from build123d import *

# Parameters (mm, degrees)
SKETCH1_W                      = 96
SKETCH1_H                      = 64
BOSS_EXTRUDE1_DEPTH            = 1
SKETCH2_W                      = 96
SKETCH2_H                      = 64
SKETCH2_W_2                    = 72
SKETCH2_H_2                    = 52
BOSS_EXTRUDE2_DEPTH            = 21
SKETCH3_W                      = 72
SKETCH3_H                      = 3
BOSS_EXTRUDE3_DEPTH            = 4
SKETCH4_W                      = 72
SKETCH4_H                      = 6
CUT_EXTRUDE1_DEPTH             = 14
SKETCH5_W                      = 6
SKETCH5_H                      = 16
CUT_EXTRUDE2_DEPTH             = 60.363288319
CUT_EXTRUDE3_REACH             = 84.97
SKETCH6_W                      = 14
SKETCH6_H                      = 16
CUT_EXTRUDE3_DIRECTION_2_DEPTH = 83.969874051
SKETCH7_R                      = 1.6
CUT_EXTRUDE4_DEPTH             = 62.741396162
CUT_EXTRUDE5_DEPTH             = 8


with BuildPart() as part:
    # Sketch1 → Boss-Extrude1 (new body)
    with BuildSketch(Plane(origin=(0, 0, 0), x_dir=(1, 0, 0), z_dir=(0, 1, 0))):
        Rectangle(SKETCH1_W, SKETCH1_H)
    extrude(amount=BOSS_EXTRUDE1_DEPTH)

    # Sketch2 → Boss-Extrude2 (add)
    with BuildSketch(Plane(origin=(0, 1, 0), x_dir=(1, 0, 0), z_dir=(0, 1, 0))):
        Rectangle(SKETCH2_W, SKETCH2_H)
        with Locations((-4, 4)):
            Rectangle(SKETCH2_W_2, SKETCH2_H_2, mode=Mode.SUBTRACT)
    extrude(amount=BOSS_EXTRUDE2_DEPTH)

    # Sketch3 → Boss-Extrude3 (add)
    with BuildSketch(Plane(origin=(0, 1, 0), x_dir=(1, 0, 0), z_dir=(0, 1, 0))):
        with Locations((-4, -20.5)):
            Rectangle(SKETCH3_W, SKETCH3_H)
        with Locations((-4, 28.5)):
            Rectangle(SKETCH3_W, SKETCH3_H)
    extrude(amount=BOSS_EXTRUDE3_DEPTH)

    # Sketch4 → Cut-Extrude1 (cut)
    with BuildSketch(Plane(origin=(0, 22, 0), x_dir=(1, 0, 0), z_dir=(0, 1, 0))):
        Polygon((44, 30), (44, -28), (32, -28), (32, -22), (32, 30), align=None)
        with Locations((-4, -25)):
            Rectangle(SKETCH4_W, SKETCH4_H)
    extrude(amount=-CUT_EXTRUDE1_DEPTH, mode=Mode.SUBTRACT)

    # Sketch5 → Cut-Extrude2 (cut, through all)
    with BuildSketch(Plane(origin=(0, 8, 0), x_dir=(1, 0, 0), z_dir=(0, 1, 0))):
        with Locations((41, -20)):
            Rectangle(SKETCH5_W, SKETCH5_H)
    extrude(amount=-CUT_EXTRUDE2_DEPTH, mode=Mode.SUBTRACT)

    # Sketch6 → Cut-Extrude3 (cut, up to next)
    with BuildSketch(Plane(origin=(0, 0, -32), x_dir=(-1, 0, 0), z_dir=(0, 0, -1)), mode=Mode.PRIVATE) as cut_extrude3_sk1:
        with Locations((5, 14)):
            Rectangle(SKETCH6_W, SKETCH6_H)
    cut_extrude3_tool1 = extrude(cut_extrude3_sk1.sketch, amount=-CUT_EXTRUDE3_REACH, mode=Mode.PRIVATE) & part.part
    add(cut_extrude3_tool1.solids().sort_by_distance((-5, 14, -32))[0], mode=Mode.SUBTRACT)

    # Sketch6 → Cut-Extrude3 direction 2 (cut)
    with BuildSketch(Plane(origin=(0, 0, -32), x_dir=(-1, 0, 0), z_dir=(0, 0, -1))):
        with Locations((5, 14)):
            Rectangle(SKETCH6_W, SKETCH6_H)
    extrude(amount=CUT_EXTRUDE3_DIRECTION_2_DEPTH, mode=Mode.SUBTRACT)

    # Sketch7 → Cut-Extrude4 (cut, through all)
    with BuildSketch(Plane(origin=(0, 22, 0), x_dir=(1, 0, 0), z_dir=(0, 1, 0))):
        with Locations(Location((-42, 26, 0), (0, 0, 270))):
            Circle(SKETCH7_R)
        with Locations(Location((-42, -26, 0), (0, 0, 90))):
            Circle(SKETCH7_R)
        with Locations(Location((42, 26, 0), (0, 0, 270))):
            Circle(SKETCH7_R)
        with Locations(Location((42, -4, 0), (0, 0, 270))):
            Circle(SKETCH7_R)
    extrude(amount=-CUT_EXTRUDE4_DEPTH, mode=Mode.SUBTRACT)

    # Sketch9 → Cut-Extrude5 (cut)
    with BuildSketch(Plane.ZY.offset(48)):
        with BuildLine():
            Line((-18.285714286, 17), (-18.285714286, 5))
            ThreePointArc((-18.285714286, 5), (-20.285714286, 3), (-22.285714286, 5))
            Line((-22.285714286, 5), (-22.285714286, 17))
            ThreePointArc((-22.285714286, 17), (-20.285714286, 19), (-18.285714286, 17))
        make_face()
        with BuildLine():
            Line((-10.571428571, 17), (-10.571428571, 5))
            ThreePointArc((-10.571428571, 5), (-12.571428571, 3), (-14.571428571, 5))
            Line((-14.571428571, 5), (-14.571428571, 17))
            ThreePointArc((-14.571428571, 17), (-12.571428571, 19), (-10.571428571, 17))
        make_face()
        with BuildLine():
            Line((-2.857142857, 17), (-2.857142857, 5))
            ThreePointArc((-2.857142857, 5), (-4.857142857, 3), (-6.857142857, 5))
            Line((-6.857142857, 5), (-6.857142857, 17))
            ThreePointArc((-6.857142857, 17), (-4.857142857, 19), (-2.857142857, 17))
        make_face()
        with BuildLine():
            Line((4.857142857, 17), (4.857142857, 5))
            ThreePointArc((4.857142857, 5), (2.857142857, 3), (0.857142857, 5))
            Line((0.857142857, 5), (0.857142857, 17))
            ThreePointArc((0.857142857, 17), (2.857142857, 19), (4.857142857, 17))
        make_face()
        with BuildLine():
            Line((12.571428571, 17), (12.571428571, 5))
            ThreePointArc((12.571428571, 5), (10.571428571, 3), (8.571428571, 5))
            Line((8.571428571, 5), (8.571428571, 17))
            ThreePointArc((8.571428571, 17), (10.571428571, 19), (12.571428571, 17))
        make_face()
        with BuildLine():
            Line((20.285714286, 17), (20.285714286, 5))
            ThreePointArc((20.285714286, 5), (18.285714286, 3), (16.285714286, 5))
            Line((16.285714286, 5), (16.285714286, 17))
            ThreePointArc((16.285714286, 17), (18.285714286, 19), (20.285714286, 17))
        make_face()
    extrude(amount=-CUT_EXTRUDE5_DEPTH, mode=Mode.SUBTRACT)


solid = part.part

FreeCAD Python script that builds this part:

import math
import FreeCAD as App
import Part
import Sketcher
from FreeCAD import Vector
Q = App.Units.Quantity


def add_polygon(sketch, points):
    """Adds a closed chain of lines whose ends are joined by coincident constraints."""
    first, n = sketch.GeometryCount, len(points)
    for a, b in zip(points, points[1:] + points[:1]):
        sketch.addGeometry(Part.LineSegment(App.Vector(*a, 0), App.Vector(*b, 0)), False)
    for i in range(n):
        sketch.addConstraint(Sketcher.Constraint("Coincident", first + i, 2, first + (i + 1) % n, 1))

doc = App.newDocument("Part")
body = doc.addObject("PartDesign::Body", "Body")

sketch1 = body.newObject("Sketcher::SketchObject", "Sketch")
sketch1.AttachmentSupport = (doc.getObject("XZ_Plane"), [""])
sketch1.MapMode = "FlatFace"
add_polygon(sketch1, [(-48, -32), (-48, 32), (48, 32), (48, -32)])
sketch1.addConstraint(Sketcher.Constraint("Vertical", 0))
sketch1.addConstraint(Sketcher.Constraint("Horizontal", 1))
sketch1.addConstraint(Sketcher.Constraint("Vertical", 2))
sketch1.addConstraint(Sketcher.Constraint("Horizontal", 3))
sketch1.addConstraint(Sketcher.Constraint("Symmetric", 0, 2, 2, 2, -1, 1))
sketch1.addConstraint(Sketcher.Constraint("DistanceX", 1, 1, 1, 2, Q("96 mm")))
sketch1.addConstraint(Sketcher.Constraint("DistanceY", 0, 1, 0, 2, Q("64 mm")))
pad1 = body.newObject("PartDesign::Pad", "Pad")
pad1.Profile = sketch1
pad1.Length = 1
pad1.Reversed = True

sketch2 = body.newObject("Sketcher::SketchObject", "Sketch001")
sketch2.AttachmentSupport = (doc.getObject("XZ_Plane"), [""])
sketch2.MapMode = "FlatFace"
sketch2.AttachmentOffset = App.Placement(Vector(0, 0, -1), App.Rotation())
add_polygon(sketch2, [(-48, -32), (-48, 32), (48, 32), (48, -32)])
add_polygon(sketch2, [(32, 22), (-40, 22), (-40, -30), (32, -30)])
sketch2.addConstraint(Sketcher.Constraint("Vertical", 0))
sketch2.addConstraint(Sketcher.Constraint("Horizontal", 1))
sketch2.addConstraint(Sketcher.Constraint("Vertical", 2))
sketch2.addConstraint(Sketcher.Constraint("Horizontal", 3))
sketch2.addConstraint(Sketcher.Constraint("Horizontal", 4))
sketch2.addConstraint(Sketcher.Constraint("Vertical", 5))
sketch2.addConstraint(Sketcher.Constraint("Horizontal", 6))
sketch2.addConstraint(Sketcher.Constraint("Vertical", 7))
sketch2.addConstraint(Sketcher.Constraint("Symmetric", 0, 2, 2, 2, -1, 1))
sketch2.addConstraint(Sketcher.Constraint("DistanceX", 1, 1, 1, 2, Q("96 mm")))
sketch2.addConstraint(Sketcher.Constraint("DistanceX", 4, 2, 4, 1, Q("72 mm")))
sketch2.addConstraint(Sketcher.Constraint("DistanceY", 0, 1, 0, 2, Q("64 mm")))
sketch2.addConstraint(Sketcher.Constraint("DistanceY", 5, 2, 5, 1, Q("52 mm")))
sketch2.addConstraint(Sketcher.Constraint("DistanceX", 4, 2, -1, 1, Q("40 mm")))
sketch2.addConstraint(Sketcher.Constraint("DistanceY", -1, 1, 4, 2, Q("22 mm")))
pad2 = body.newObject("PartDesign::Pad", "Pad001")
pad2.Profile = sketch2
pad2.Length = 21
pad2.Reversed = True

sketch3 = body.newObject("Sketcher::SketchObject", "Sketch002")
sketch3.AttachmentSupport = (doc.getObject("XZ_Plane"), [""])
sketch3.MapMode = "FlatFace"
sketch3.AttachmentOffset = App.Placement(Vector(0, 0, -1), App.Rotation())
add_polygon(sketch3, [(-40, 19), (-40, 22), (32, 22), (32, 19)])
add_polygon(sketch3, [(-40, -30), (-40, -27), (32, -27), (32, -30)])
sketch3.addConstraint(Sketcher.Constraint("Vertical", 0))
sketch3.addConstraint(Sketcher.Constraint("Horizontal", 1))
sketch3.addConstraint(Sketcher.Constraint("Vertical", 2))
sketch3.addConstraint(Sketcher.Constraint("Horizontal", 3))
sketch3.addConstraint(Sketcher.Constraint("Vertical", 4))
sketch3.addConstraint(Sketcher.Constraint("Horizontal", 5))
sketch3.addConstraint(Sketcher.Constraint("Vertical", 6))
sketch3.addConstraint(Sketcher.Constraint("Horizontal", 7))
sketch3.addConstraint(Sketcher.Constraint("Vertical", 3, 2, 4, 2))
sketch3.addConstraint(Sketcher.Constraint("Vertical", 2, 2, 5, 2))
sketch3.addConstraint(Sketcher.Constraint("Equal", 2, 4))
sketch3.addConstraint(Sketcher.Constraint("DistanceX", 1, 1, 1, 2, Q("72 mm")))
sketch3.addConstraint(Sketcher.Constraint("DistanceY", 0, 1, 0, 2, Q("3 mm")))
sketch3.addConstraint(Sketcher.Constraint("DistanceX", 0, 2, -1, 1, Q("40 mm")))
sketch3.addConstraint(Sketcher.Constraint("DistanceY", -1, 1, 0, 2, Q("22 mm")))
sketch3.addConstraint(Sketcher.Constraint("DistanceY", 4, 2, -1, 1, Q("27 mm")))
pad3 = body.newObject("PartDesign::Pad", "Pad002")
pad3.Profile = sketch3
pad3.Length = 4
pad3.Reversed = True

sketch4 = body.newObject("Sketcher::SketchObject", "Sketch003")
sketch4.AttachmentSupport = (doc.getObject("XZ_Plane"), [""])
sketch4.MapMode = "FlatFace"
sketch4.AttachmentOffset = App.Placement(Vector(0, 0, -22), App.Rotation())
add_polygon(sketch4, [(44, 28), (44, -30), (32, -30), (32, 22), (-40, 22), (-40, 28)])
sketch4.addConstraint(Sketcher.Constraint("Vertical", 0))
sketch4.addConstraint(Sketcher.Constraint("Horizontal", 1))
sketch4.addConstraint(Sketcher.Constraint("Vertical", 2))
sketch4.addConstraint(Sketcher.Constraint("Horizontal", 3))
sketch4.addConstraint(Sketcher.Constraint("Vertical", 4))
sketch4.addConstraint(Sketcher.Constraint("Horizontal", 5))
sketch4.addConstraint(Sketcher.Constraint("DistanceX", 1, 2, 1, 1, Q("12 mm")))
sketch4.addConstraint(Sketcher.Constraint("DistanceX", 3, 2, 3, 1, Q("72 mm")))
sketch4.addConstraint(Sketcher.Constraint("DistanceY", 0, 2, 0, 1, Q("58 mm")))
sketch4.addConstraint(Sketcher.Constraint("DistanceY", 2, 1, 2, 2, Q("52 mm")))
sketch4.addConstraint(Sketcher.Constraint("DistanceX", -1, 1, 0, 2, Q("44 mm")))
sketch4.addConstraint(Sketcher.Constraint("DistanceY", 0, 2, -1, 1, Q("30 mm")))
pocket1 = body.newObject("PartDesign::Pocket", "Pocket")
pocket1.Profile = sketch4
pocket1.Length = 14
pocket1.Reversed = True

sketch5 = body.newObject("Sketcher::SketchObject", "Sketch004")
sketch5.AttachmentSupport = (doc.getObject("XZ_Plane"), [""])
sketch5.MapMode = "FlatFace"
sketch5.AttachmentOffset = App.Placement(Vector(0, 0, -8), App.Rotation())
add_polygon(sketch5, [(38, 12), (38, 28), (44, 28), (44, 12)])
sketch5.addConstraint(Sketcher.Constraint("Vertical", 0))
sketch5.addConstraint(Sketcher.Constraint("Horizontal", 1))
sketch5.addConstraint(Sketcher.Constraint("Vertical", 2))
sketch5.addConstraint(Sketcher.Constraint("Horizontal", 3))
sketch5.addConstraint(Sketcher.Constraint("DistanceX", 1, 1, 1, 2, Q("6 mm")))
sketch5.addConstraint(Sketcher.Constraint("DistanceY", 0, 1, 0, 2, Q("16 mm")))
sketch5.addConstraint(Sketcher.Constraint("DistanceX", -1, 1, 0, 2, Q("38 mm")))
sketch5.addConstraint(Sketcher.Constraint("DistanceY", -1, 1, 0, 2, Q("28 mm")))
pocket2 = body.newObject("PartDesign::Pocket", "Pocket001")
pocket2.Profile = sketch5
pocket2.Type = "ThroughAll"
pocket2.Reversed = True

sketch6 = body.newObject("Sketcher::SketchObject", "Sketch005")
sketch6.AttachmentSupport = (doc.getObject("XY_Plane"), [""])
sketch6.MapMode = "FlatFace"
sketch6.AttachmentOffset = App.Placement(Vector(0, 0, -32), App.Rotation())
add_polygon(sketch6, [(2, 22), (2, 6), (-12, 6), (-12, 22)])
sketch6.addConstraint(Sketcher.Constraint("Vertical", 0))
sketch6.addConstraint(Sketcher.Constraint("Horizontal", 1))
sketch6.addConstraint(Sketcher.Constraint("Vertical", 2))
sketch6.addConstraint(Sketcher.Constraint("Horizontal", 3))
sketch6.addConstraint(Sketcher.Constraint("DistanceX", 1, 2, 1, 1, Q("14 mm")))
sketch6.addConstraint(Sketcher.Constraint("DistanceY", 0, 2, 0, 1, Q("16 mm")))
sketch6.addConstraint(Sketcher.Constraint("DistanceX", -1, 1, 0, 2, Q("2 mm")))
sketch6.addConstraint(Sketcher.Constraint("DistanceY", -1, 1, 0, 2, Q("6 mm")))
pocket3 = body.newObject("PartDesign::Pocket", "Pocket002")
pocket3.Profile = sketch6
pocket3.Type = "UpToFirst"
pocket3.Reversed = True

sketch7 = body.newObject("Sketcher::SketchObject", "Sketch006")
sketch7.AttachmentSupport = (doc.getObject("XY_Plane"), [""])
sketch7.MapMode = "FlatFace"
sketch7.AttachmentOffset = App.Placement(Vector(0, 0, -32), App.Rotation())
add_polygon(sketch7, [(2, 22), (2, 6), (-12, 6), (-12, 22)])
sketch7.addConstraint(Sketcher.Constraint("Vertical", 0))
sketch7.addConstraint(Sketcher.Constraint("Horizontal", 1))
sketch7.addConstraint(Sketcher.Constraint("Vertical", 2))
sketch7.addConstraint(Sketcher.Constraint("Horizontal", 3))
sketch7.addConstraint(Sketcher.Constraint("DistanceX", 1, 2, 1, 1, Q("14 mm")))
sketch7.addConstraint(Sketcher.Constraint("DistanceY", 0, 2, 0, 1, Q("16 mm")))
sketch7.addConstraint(Sketcher.Constraint("DistanceX", -1, 1, 0, 2, Q("2 mm")))
sketch7.addConstraint(Sketcher.Constraint("DistanceY", -1, 1, 0, 2, Q("6 mm")))
pocket4 = body.newObject("PartDesign::Pocket", "Pocket003")
pocket4.Profile = sketch7
pocket4.Length = 83.969874

sketch8 = body.newObject("Sketcher::SketchObject", "Sketch007")
sketch8.AttachmentSupport = (doc.getObject("XZ_Plane"), [""])
sketch8.MapMode = "FlatFace"
sketch8.AttachmentOffset = App.Placement(Vector(0, 0, -22), App.Rotation())
sketch8.addGeometry(Part.Circle(Vector(-42, -26, 0), Vector(0, 0, 1), 1.6), False)
sketch8.addGeometry(Part.Circle(Vector(-42, 26, 0), Vector(0, 0, 1), 1.6), False)
sketch8.addGeometry(Part.Circle(Vector(42, -26, 0), Vector(0, 0, 1), 1.6), False)
sketch8.addGeometry(Part.Circle(Vector(42, 4, 0), Vector(0, 0, 1), 1.6), False)
sketch8.addConstraint(Sketcher.Constraint("Equal", 0, 1))
sketch8.addConstraint(Sketcher.Constraint("Equal", 1, 2))
sketch8.addConstraint(Sketcher.Constraint("Equal", 2, 3))
sketch8.addConstraint(Sketcher.Constraint("Symmetric", 1, 3, 2, 3, -1, 1))
sketch8.addConstraint(Sketcher.Constraint("Symmetric", 0, 3, 2, 3, -2))
sketch8.addConstraint(Sketcher.Constraint("Vertical", 2, 3, 3, 3))
sketch8.addConstraint(Sketcher.Constraint("Diameter", 0, Q("3.2 mm")))
sketch8.addConstraint(Sketcher.Constraint("DistanceX", 0, 3, -1, 1, Q("42 mm")))
sketch8.addConstraint(Sketcher.Constraint("DistanceY", 0, 3, -1, 1, Q("26 mm")))
sketch8.addConstraint(Sketcher.Constraint("DistanceY", -1, 1, 3, 3, Q("4 mm")))
pocket5 = body.newObject("PartDesign::Pocket", "Pocket004")
pocket5.Profile = sketch8
pocket5.Type = "ThroughAll"
pocket5.Reversed = True

sketch9 = body.newObject("Sketcher::SketchObject", "Sketch008")
sketch9.AttachmentSupport = (doc.getObject("YZ_Plane"), [""])
sketch9.MapMode = "FlatFace"
sketch9.AttachmentOffset = App.Placement(Vector(0, 0, -48), App.Rotation())
sketch9.addGeometry(Part.LineSegment(Vector(5, -18.3, 0), Vector(17, -18.3, 0)), False)
sketch9.addGeometry(Part.ArcOfCircle(Part.Circle(Vector(17, -20.3, 0), Vector(0, 0, 1), 2), math.radians(-90), math.radians(90)), False)
sketch9.addGeometry(Part.LineSegment(Vector(17, -22.3, 0), Vector(5, -22.3, 0)), False)
sketch9.addGeometry(Part.ArcOfCircle(Part.Circle(Vector(5, -20.3, 0), Vector(0, 0, 1), 2), math.radians(90), math.radians(270)), False)
sketch9.addGeometry(Part.LineSegment(Vector(5, -10.6, 0), Vector(17, -10.6, 0)), False)
sketch9.addGeometry(Part.ArcOfCircle(Part.Circle(Vector(17, -12.6, 0), Vector(0, 0, 1), 2), math.radians(-90), math.radians(90)), False)
sketch9.addGeometry(Part.LineSegment(Vector(17, -14.6, 0), Vector(5, -14.6, 0)), False)
sketch9.addGeometry(Part.ArcOfCircle(Part.Circle(Vector(5, -12.6, 0), Vector(0, 0, 1), 2), math.radians(90), math.radians(270)), False)
sketch9.addGeometry(Part.LineSegment(Vector(5, -2.9, 0), Vector(17, -2.9, 0)), False)
sketch9.addGeometry(Part.ArcOfCircle(Part.Circle(Vector(17, -4.9, 0), Vector(0, 0, 1), 2), math.radians(-90), math.radians(90)), False)
sketch9.addGeometry(Part.LineSegment(Vector(17, -6.9, 0), Vector(5, -6.9, 0)), False)
sketch9.addGeometry(Part.ArcOfCircle(Part.Circle(Vector(5, -4.9, 0), Vector(0, 0, 1), 2), math.radians(90), math.radians(270)), False)
sketch9.addGeometry(Part.LineSegment(Vector(5, 4.9, 0), Vector(17, 4.9, 0)), False)
sketch9.addGeometry(Part.ArcOfCircle(Part.Circle(Vector(17, 2.9, 0), Vector(0, 0, 1), 2), math.radians(-90), math.radians(90)), False)
sketch9.addGeometry(Part.LineSegment(Vector(17, 0.9, 0), Vector(5, 0.9, 0)), False)
sketch9.addGeometry(Part.ArcOfCircle(Part.Circle(Vector(5, 2.9, 0), Vector(0, 0, 1), 2), math.radians(90), math.radians(270)), False)
sketch9.addGeometry(Part.LineSegment(Vector(5, 12.6, 0), Vector(17, 12.6, 0)), False)
sketch9.addGeometry(Part.ArcOfCircle(Part.Circle(Vector(17, 10.6, 0), Vector(0, 0, 1), 2), math.radians(-90), math.radians(90)), False)
sketch9.addGeometry(Part.LineSegment(Vector(17, 8.6, 0), Vector(5, 8.6, 0)), False)
sketch9.addGeometry(Part.ArcOfCircle(Part.Circle(Vector(5, 10.6, 0), Vector(0, 0, 1), 2), math.radians(90), math.radians(270)), False)
sketch9.addGeometry(Part.LineSegment(Vector(5, 20.3, 0), Vector(17, 20.3, 0)), False)
sketch9.addGeometry(Part.ArcOfCircle(Part.Circle(Vector(17, 18.3, 0), Vector(0, 0, 1), 2), math.radians(-90), math.radians(90)), False)
sketch9.addGeometry(Part.LineSegment(Vector(17, 16.3, 0), Vector(5, 16.3, 0)), False)
sketch9.addGeometry(Part.ArcOfCircle(Part.Circle(Vector(5, 18.3, 0), Vector(0, 0, 1), 2), math.radians(90), math.radians(270)), False)
sketch9.addConstraint(Sketcher.Constraint("Tangent", 0, 2, 1, 2))
sketch9.addConstraint(Sketcher.Constraint("Tangent", 1, 1, 2, 1))
sketch9.addConstraint(Sketcher.Constraint("Tangent", 2, 2, 3, 2))
sketch9.addConstraint(Sketcher.Constraint("Tangent", 3, 1, 0, 1))
sketch9.addConstraint(Sketcher.Constraint("Tangent", 4, 2, 5, 2))
sketch9.addConstraint(Sketcher.Constraint("Tangent", 5, 1, 6, 1))
sketch9.addConstraint(Sketcher.Constraint("Tangent", 6, 2, 7, 2))
sketch9.addConstraint(Sketcher.Constraint("Tangent", 7, 1, 4, 1))
sketch9.addConstraint(Sketcher.Constraint("Tangent", 8, 2, 9, 2))
sketch9.addConstraint(Sketcher.Constraint("Tangent", 9, 1, 10, 1))
sketch9.addConstraint(Sketcher.Constraint("Tangent", 10, 2, 11, 2))
sketch9.addConstraint(Sketcher.Constraint("Tangent", 11, 1, 8, 1))
sketch9.addConstraint(Sketcher.Constraint("Tangent", 12, 2, 13, 2))
sketch9.addConstraint(Sketcher.Constraint("Tangent", 13, 1, 14, 1))
sketch9.addConstraint(Sketcher.Constraint("Tangent", 14, 2, 15, 2))
sketch9.addConstraint(Sketcher.Constraint("Tangent", 15, 1, 12, 1))
sketch9.addConstraint(Sketcher.Constraint("Tangent", 16, 2, 17, 2))
sketch9.addConstraint(Sketcher.Constraint("Tangent", 17, 1, 18, 1))
sketch9.addConstraint(Sketcher.Constraint("Tangent", 18, 2, 19, 2))
sketch9.addConstraint(Sketcher.Constraint("Tangent", 19, 1, 16, 1))
sketch9.addConstraint(Sketcher.Constraint("Tangent", 20, 2, 21, 2))
sketch9.addConstraint(Sketcher.Constraint("Tangent", 21, 1, 22, 1))
sketch9.addConstraint(Sketcher.Constraint("Tangent", 22, 2, 23, 2))
sketch9.addConstraint(Sketcher.Constraint("Tangent", 23, 1, 20, 1))
sketch9.addConstraint(Sketcher.Constraint("Horizontal", 0))
sketch9.addConstraint(Sketcher.Constraint("Horizontal", 2))
sketch9.addConstraint(Sketcher.Constraint("Horizontal", 4))
sketch9.addConstraint(Sketcher.Constraint("Horizontal", 6))
sketch9.addConstraint(Sketcher.Constraint("Horizontal", 8))
sketch9.addConstraint(Sketcher.Constraint("Horizontal", 10))
sketch9.addConstraint(Sketcher.Constraint("Horizontal", 12))
sketch9.addConstraint(Sketcher.Constraint("Horizontal", 14))
sketch9.addConstraint(Sketcher.Constraint("Horizontal", 16))
sketch9.addConstraint(Sketcher.Constraint("Horizontal", 18))
sketch9.addConstraint(Sketcher.Constraint("Horizontal", 20))
sketch9.addConstraint(Sketcher.Constraint("Horizontal", 22))
sketch9.addConstraint(Sketcher.Constraint("Equal", 3, 5))
sketch9.addConstraint(Sketcher.Constraint("Equal", 7, 9))
sketch9.addConstraint(Sketcher.Constraint("Equal", 11, 13))
sketch9.addConstraint(Sketcher.Constraint("Equal", 15, 17))
sketch9.addConstraint(Sketcher.Constraint("Equal", 19, 21))
sketch9.addConstraint(Sketcher.Constraint("Vertical", 1, 3, 5, 3))
sketch9.addConstraint(Sketcher.Constraint("Vertical", 3, 3, 7, 3))
sketch9.addConstraint(Sketcher.Constraint("Vertical", 5, 3, 9, 3))
sketch9.addConstraint(Sketcher.Constraint("Vertical", 7, 3, 11, 3))
sketch9.addConstraint(Sketcher.Constraint("Vertical", 9, 3, 13, 3))
sketch9.addConstraint(Sketcher.Constraint("Vertical", 11, 3, 15, 3))
sketch9.addConstraint(Sketcher.Constraint("Vertical", 13, 3, 17, 3))
sketch9.addConstraint(Sketcher.Constraint("Vertical", 15, 3, 19, 3))
sketch9.addConstraint(Sketcher.Constraint("Vertical", 17, 3, 21, 3))
sketch9.addConstraint(Sketcher.Constraint("Vertical", 19, 3, 23, 3))
sketch9.addConstraint(Sketcher.Constraint("Radius", 1, Q("2 mm")))
sketch9.addConstraint(Sketcher.Constraint("DistanceX", 0, 1, 0, 2, Q("12 mm")))
sketch9.addConstraint(Sketcher.Constraint("DistanceX", -1, 1, 1, 3, Q("17 mm")))
sketch9.addConstraint(Sketcher.Constraint("DistanceY", 5, 3, -1, 1, Q("12.571429 mm")))
sketch9.addConstraint(Sketcher.Constraint("DistanceY", -1, 1, 17, 3, Q("10.571429 mm")))
sketch9.addConstraint(Sketcher.Constraint("DistanceY", 1, 3, 9, 3, Q("15.428571 mm")))
sketch9.addConstraint(Sketcher.Constraint("DistanceY", 5, 3, 13, 3, Q("15.428571 mm")))
sketch9.addConstraint(Sketcher.Constraint("DistanceY", 9, 3, 17, 3, Q("15.428571 mm")))
sketch9.addConstraint(Sketcher.Constraint("DistanceY", 13, 3, 21, 3, Q("15.428571 mm")))
pocket6 = body.newObject("PartDesign::Pocket", "Pocket005")
pocket6.Profile = sketch9
pocket6.Length = 8
pocket6.Reversed = True

doc.recompute()
